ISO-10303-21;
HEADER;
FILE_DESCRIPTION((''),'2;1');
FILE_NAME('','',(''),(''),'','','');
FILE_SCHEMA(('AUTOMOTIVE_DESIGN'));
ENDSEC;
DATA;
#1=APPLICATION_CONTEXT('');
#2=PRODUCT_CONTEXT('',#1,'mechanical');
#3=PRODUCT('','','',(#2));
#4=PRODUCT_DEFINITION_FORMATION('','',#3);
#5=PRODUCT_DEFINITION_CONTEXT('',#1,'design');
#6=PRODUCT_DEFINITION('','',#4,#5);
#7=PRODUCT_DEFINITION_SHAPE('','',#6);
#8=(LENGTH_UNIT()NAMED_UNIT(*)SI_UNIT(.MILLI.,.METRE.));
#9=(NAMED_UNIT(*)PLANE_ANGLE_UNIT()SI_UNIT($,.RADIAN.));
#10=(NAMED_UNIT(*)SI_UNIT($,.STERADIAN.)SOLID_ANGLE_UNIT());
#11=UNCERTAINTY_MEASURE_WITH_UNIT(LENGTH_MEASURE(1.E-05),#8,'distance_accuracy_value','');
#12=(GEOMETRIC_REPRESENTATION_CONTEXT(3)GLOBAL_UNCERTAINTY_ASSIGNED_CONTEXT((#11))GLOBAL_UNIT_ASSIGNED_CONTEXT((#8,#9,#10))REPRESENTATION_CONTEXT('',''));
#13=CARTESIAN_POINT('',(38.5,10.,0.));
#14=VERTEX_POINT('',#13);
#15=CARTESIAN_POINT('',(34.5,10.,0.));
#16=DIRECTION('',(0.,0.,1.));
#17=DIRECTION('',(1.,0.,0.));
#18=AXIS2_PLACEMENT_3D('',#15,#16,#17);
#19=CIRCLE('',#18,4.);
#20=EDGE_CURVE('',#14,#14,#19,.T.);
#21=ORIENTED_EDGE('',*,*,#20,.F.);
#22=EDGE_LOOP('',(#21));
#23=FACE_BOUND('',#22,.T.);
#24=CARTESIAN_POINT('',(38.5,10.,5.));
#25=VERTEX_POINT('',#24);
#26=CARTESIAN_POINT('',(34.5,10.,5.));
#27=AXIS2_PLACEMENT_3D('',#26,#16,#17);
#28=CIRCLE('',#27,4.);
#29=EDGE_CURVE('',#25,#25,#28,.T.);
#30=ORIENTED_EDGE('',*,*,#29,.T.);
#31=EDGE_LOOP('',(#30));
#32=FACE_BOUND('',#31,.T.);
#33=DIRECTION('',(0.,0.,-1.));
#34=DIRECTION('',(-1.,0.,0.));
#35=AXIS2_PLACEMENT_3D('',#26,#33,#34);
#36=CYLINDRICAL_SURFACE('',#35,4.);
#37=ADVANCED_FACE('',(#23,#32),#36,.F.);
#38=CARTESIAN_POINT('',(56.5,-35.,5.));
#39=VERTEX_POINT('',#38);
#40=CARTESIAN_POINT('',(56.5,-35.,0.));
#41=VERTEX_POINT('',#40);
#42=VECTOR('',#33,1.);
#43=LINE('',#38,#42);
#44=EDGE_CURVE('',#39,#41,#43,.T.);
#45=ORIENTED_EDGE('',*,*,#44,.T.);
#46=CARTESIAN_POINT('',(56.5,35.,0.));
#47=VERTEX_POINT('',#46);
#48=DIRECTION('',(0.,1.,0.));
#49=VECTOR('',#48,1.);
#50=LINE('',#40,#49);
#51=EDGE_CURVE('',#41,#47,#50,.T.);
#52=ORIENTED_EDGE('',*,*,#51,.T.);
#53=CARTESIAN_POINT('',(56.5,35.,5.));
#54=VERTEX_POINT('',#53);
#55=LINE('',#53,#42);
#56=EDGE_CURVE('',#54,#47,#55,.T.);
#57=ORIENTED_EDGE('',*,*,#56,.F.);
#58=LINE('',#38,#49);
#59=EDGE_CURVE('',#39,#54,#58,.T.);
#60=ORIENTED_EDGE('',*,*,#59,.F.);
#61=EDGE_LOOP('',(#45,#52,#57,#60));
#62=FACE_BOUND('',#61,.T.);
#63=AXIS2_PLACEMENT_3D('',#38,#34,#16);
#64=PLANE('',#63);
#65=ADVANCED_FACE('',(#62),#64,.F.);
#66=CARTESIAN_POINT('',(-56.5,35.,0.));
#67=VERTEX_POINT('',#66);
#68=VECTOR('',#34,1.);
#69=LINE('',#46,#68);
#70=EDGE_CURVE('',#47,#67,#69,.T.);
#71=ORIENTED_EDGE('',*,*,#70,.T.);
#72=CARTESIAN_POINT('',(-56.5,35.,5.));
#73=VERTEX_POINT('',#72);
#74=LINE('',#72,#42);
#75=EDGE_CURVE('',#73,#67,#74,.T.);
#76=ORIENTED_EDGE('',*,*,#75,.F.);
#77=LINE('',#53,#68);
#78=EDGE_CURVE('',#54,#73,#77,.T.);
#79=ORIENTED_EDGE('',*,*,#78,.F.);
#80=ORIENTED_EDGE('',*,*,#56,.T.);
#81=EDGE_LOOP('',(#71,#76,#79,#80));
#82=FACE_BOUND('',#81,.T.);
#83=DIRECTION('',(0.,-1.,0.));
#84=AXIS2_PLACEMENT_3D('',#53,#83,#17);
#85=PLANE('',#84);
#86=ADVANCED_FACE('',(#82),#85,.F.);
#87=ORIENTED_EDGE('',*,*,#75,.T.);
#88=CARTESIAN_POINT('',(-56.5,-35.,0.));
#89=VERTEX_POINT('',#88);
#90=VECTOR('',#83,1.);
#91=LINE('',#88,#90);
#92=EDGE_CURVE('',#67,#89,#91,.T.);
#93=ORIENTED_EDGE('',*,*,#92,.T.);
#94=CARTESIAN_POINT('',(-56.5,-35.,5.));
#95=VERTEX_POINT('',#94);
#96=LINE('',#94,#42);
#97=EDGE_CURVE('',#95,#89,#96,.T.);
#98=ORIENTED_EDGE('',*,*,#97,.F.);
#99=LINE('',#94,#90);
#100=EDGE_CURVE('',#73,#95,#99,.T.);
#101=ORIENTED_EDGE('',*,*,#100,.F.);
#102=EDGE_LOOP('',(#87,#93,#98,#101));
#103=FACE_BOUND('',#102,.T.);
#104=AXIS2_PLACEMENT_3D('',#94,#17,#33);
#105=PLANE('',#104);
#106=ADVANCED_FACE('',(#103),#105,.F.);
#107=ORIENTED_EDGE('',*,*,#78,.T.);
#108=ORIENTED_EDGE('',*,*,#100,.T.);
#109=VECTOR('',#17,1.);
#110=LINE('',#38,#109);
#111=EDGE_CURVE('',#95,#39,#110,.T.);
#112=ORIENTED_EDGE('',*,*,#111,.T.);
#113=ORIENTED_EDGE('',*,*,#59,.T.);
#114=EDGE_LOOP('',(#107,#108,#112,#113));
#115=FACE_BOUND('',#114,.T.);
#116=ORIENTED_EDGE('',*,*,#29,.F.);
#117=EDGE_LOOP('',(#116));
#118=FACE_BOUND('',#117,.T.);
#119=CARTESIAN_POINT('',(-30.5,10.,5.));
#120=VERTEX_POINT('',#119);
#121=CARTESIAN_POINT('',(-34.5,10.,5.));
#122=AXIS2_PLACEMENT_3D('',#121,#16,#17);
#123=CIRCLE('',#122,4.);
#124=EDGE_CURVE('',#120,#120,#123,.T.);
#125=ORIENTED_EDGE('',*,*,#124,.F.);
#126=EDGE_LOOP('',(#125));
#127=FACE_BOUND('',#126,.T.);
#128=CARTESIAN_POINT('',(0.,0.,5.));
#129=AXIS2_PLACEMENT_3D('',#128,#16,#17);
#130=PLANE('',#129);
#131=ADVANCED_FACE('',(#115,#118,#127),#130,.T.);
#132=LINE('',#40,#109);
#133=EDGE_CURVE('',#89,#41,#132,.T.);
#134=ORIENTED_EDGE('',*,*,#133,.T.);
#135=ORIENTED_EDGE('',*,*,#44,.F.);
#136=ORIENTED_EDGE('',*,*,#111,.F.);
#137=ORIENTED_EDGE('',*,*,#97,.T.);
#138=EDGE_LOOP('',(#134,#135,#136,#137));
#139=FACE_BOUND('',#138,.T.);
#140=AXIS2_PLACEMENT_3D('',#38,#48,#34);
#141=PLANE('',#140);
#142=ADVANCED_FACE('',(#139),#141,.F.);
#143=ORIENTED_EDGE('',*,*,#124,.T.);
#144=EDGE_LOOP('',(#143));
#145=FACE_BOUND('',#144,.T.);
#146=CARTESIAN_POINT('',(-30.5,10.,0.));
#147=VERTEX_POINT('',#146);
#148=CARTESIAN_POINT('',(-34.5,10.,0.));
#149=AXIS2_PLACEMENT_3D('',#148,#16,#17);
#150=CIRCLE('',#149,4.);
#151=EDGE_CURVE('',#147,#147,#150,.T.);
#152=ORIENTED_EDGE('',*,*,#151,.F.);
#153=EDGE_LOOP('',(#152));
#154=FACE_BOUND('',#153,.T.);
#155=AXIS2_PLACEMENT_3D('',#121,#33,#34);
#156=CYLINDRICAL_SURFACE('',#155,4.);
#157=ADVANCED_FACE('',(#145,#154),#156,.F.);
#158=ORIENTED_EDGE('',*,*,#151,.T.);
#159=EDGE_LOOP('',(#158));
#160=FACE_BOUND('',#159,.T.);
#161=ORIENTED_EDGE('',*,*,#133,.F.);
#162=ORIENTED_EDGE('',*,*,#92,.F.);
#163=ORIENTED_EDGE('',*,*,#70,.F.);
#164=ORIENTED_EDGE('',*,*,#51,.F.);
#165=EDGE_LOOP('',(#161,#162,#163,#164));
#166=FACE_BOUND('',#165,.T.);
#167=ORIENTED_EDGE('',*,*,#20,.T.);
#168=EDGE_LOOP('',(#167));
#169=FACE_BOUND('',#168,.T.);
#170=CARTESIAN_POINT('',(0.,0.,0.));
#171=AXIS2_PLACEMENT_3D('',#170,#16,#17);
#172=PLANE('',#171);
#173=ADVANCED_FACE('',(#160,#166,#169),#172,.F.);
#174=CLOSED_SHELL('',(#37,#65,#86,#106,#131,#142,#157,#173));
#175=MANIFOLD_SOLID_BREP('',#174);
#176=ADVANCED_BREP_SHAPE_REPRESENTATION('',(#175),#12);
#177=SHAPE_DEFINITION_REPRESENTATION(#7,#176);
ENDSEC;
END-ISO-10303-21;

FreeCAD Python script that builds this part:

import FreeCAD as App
import Part
import Sketcher
from FreeCAD import Vector
Q = App.Units.Quantity

doc = App.newDocument("Part")
body = doc.addObject("PartDesign::Body", "Body")

sketch1 = body.newObject("Sketcher::SketchObject", "Sketch")
sketch1.AttachmentSupport = (doc.getObject("XY_Plane"), [""])
sketch1.MapMode = "FlatFace"
sketch1.addGeometry([
    Part.LineSegment(Vector(-56.5, 35, 0), Vector(-56.5, -35, 0)),
    Part.LineSegment(Vector(-56.5, -35, 0), Vector(56.5, -35, 0)),
    Part.LineSegment(Vector(56.5, -35, 0), Vector(56.5, 35, 0)),
    Part.LineSegment(Vector(56.5, 35, 0), Vector(-56.5, 35, 0)),
    Part.Circle(Vector(-34.5, 10, 0), Vector(0, 0, 1), 4),
    Part.Circle(Vector(34.5, 10, 0), Vector(0, 0, 1), 4),
], False)
sketch1.addConstraint([
    Sketcher.Constraint("Coincident", 0, 2, 1, 1),
    Sketcher.Constraint("Coincident", 1, 2, 2, 1),
    Sketcher.Constraint("Coincident", 2, 2, 3, 1),
    Sketcher.Constraint("Coincident", 3, 2, 0, 1),
    Sketcher.Constraint("Vertical", 0),
    Sketcher.Constraint("Horizontal", 1),
    Sketcher.Constraint("Vertical", 2),
    Sketcher.Constraint("Horizontal", 3),
    Sketcher.Constraint("Equal", 4, 5),
    Sketcher.Constraint("Symmetric", 0, 2, 2, 2, -1, 1),
    Sketcher.Constraint("Symmetric", 4, 3, 5, 3, -2),
    Sketcher.Constraint("Diameter", 4, Q("8 mm")),
    Sketcher.Constraint("DistanceX", 1, 1, 1, 2, Q("113 mm")),
    Sketcher.Constraint("DistanceY", 0, 2, 0, 1, Q("70 mm")),
    Sketcher.Constraint("DistanceY", -1, 1, 4, 3, Q("10 mm")),
    Sketcher.Constraint("DistanceX", 4, 3, 5, 3, Q("69 mm")),
])
pad1 = body.newObject("PartDesign::Pad", "Pad")
pad1.Profile = sketch1
pad1.Length = 5

doc.recompute()
